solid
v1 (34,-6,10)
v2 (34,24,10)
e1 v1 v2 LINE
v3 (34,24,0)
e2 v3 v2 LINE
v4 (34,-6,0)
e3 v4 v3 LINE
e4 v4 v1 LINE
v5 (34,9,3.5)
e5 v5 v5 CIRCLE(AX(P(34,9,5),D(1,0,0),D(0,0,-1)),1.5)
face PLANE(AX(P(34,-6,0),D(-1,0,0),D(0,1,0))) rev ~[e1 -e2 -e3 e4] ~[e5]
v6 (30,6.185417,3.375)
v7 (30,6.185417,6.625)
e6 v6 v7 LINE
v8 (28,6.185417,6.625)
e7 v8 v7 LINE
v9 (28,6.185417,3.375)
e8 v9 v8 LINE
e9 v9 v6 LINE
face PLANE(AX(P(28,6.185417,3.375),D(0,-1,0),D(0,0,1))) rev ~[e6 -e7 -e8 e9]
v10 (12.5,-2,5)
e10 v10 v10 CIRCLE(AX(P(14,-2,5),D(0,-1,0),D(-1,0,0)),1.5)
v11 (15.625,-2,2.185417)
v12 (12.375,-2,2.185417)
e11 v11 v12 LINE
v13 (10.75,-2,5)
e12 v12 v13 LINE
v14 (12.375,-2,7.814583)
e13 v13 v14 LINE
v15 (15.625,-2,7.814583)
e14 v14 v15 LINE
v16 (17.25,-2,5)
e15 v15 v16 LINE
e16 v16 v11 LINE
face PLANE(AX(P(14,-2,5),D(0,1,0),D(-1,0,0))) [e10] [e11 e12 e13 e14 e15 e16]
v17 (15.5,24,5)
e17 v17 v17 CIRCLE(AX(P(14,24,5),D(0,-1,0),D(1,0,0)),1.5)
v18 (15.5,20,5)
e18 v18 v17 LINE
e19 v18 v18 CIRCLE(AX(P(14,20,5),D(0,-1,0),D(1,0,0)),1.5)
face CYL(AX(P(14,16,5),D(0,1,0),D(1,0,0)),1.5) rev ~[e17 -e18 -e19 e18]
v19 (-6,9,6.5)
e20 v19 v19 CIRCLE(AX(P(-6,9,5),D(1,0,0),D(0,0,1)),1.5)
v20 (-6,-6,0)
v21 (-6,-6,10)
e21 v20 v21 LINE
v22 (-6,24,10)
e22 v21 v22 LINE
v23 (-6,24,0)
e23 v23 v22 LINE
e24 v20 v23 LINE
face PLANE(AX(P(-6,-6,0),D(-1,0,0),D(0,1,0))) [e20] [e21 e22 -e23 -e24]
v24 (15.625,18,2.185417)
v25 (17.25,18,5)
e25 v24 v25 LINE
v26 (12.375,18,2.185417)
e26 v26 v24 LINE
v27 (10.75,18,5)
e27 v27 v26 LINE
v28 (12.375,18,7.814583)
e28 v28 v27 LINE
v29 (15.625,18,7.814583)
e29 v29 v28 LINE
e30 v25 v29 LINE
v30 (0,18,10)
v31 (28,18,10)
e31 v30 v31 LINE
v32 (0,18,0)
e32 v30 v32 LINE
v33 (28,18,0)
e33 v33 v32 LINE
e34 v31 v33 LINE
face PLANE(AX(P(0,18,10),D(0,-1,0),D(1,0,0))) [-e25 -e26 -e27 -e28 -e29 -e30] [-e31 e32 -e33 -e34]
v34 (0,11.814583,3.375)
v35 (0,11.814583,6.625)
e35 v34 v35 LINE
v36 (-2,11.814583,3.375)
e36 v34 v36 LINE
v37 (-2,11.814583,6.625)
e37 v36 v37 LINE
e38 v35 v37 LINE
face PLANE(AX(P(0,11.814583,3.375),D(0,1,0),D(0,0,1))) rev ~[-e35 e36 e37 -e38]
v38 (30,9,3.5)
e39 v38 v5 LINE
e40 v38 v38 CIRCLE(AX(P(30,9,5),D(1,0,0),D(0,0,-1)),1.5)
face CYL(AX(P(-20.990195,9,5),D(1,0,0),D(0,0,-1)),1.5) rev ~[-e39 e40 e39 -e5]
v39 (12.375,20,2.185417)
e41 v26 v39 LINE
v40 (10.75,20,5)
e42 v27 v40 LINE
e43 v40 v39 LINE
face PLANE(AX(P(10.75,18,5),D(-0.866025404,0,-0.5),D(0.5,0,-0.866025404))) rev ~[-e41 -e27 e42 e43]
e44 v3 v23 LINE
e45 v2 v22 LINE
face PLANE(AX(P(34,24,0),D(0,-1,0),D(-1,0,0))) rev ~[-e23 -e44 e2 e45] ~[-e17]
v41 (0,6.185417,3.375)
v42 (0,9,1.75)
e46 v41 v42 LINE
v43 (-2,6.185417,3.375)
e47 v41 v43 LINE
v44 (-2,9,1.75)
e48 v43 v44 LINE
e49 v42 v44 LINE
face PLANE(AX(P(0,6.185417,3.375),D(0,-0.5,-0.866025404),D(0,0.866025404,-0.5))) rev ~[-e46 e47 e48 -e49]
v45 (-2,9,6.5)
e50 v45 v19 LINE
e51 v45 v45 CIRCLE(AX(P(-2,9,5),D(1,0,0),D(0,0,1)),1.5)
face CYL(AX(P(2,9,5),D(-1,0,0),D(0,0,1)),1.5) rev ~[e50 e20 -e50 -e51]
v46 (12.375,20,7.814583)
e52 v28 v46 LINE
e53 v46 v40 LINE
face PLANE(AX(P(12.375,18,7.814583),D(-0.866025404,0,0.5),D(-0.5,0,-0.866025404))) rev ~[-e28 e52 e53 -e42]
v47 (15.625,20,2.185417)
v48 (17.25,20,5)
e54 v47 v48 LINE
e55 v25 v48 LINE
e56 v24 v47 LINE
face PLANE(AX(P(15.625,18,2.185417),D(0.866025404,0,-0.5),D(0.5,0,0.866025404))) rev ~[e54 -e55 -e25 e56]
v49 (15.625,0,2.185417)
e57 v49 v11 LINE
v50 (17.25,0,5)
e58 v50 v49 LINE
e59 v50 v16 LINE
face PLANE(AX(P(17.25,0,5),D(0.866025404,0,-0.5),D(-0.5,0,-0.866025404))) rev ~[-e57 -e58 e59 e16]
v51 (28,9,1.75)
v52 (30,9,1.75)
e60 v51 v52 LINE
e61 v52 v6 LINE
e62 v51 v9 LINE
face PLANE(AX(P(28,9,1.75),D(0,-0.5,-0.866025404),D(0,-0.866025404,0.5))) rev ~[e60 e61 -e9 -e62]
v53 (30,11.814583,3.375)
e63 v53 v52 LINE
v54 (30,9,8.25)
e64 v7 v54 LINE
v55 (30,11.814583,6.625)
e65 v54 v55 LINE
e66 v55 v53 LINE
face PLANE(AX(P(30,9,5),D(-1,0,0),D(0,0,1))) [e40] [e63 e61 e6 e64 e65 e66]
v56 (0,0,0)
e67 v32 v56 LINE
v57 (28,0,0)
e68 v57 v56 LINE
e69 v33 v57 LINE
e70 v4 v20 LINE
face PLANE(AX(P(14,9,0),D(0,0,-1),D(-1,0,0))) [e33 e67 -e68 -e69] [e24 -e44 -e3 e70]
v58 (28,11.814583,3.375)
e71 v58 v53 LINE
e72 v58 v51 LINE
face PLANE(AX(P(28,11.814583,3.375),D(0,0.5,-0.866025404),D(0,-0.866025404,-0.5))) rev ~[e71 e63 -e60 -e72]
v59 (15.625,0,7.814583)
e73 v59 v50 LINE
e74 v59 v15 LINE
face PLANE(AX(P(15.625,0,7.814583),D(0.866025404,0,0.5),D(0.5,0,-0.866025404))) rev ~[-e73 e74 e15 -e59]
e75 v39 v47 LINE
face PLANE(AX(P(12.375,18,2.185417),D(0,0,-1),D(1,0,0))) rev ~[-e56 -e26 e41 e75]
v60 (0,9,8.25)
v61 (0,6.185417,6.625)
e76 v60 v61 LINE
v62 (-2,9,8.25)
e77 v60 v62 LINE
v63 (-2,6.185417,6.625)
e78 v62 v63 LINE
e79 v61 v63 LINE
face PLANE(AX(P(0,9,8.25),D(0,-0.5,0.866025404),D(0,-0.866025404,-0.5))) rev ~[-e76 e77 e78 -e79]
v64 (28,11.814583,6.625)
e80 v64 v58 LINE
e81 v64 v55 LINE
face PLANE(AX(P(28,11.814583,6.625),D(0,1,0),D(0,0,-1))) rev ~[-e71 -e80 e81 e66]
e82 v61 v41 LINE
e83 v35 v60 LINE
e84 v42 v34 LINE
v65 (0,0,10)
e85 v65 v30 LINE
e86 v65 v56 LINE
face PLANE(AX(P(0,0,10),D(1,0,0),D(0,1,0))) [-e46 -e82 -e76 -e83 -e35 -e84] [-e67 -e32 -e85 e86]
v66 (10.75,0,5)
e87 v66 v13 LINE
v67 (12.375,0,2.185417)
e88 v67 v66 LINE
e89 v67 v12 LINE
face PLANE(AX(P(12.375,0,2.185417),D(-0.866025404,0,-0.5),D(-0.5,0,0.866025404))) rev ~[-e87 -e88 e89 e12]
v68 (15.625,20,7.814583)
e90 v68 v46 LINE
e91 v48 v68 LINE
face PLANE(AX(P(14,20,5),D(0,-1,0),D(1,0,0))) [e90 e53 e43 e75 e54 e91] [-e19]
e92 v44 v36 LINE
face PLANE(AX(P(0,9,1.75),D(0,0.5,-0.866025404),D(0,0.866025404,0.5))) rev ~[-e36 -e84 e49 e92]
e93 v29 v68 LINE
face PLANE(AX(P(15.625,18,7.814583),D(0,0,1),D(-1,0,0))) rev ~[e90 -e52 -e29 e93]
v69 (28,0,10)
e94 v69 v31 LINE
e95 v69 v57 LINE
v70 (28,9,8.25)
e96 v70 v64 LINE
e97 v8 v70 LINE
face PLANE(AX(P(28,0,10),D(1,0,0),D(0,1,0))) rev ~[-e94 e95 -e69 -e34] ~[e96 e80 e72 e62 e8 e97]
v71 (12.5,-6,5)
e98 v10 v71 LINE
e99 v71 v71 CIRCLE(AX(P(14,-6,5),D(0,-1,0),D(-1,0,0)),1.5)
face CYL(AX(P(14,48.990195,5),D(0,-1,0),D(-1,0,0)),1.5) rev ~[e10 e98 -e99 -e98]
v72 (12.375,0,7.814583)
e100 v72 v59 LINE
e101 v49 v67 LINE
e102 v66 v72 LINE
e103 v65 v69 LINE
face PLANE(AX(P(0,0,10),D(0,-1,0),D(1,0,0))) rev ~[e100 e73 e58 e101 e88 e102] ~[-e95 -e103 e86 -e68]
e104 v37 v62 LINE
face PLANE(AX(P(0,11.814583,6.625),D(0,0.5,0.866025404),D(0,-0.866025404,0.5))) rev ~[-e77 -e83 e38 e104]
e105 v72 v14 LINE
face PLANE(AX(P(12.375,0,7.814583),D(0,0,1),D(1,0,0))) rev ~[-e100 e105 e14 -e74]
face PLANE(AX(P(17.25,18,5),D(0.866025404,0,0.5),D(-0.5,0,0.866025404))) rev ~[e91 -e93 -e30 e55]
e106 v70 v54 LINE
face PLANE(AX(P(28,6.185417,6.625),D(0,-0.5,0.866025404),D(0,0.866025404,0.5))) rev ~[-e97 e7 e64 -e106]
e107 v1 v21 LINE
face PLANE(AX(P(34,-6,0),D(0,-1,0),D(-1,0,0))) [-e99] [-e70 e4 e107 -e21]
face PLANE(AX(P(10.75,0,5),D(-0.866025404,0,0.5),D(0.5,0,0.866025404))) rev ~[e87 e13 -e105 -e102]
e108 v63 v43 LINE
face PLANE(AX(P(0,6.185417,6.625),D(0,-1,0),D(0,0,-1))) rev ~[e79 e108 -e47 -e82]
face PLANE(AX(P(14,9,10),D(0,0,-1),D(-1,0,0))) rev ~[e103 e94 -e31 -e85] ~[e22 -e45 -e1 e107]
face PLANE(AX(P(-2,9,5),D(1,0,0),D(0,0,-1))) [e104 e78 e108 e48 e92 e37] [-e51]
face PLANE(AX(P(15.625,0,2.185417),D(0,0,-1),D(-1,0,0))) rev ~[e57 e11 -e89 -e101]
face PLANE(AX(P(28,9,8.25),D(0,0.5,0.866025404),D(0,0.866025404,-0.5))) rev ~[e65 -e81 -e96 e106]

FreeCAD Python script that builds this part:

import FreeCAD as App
import Part
import Sketcher
from FreeCAD import Vector
Q = App.Units.Quantity

doc = App.newDocument("Part")
body = doc.addObject("PartDesign::Body", "Body")

# Sketch on XY plane
sketch1 = body.newObject("Sketcher::SketchObject", "Sketch")
sketch1.AttachmentSupport = (doc.getObject("XY_Plane"), [""])
sketch1.MapMode = "FlatFace"
sketch1.addGeometry([
    Part.LineSegment(Vector(34, 24, 0), Vector(34, -6, 0)),
    Part.LineSegment(Vector(34, -6, 0), Vector(-6, -6, 0)),
    Part.LineSegment(Vector(-6, -6, 0), Vector(-6, 24, 0)),
    Part.LineSegment(Vector(-6, 24, 0), Vector(34, 24, 0)),
], False)
sketch1.addConstraint([
    Sketcher.Constraint("Coincident", 0, 2, 1, 1),
    Sketcher.Constraint("Coincident", 1, 2, 2, 1),
    Sketcher.Constraint("Coincident", 2, 2, 3, 1),
    Sketcher.Constraint("Coincident", 3, 2, 0, 1),
    Sketcher.Constraint("Vertical", 0),
    Sketcher.Constraint("Horizontal", 1),
    Sketcher.Constraint("Vertical", 2),
    Sketcher.Constraint("Horizontal", 3),
    Sketcher.Constraint("DistanceX", 1, 2, 1, 1, 40.0),
    Sketcher.Constraint("DistanceY", 0, 2, 0, 1, 30.0),
    Sketcher.Constraint("DistanceX", -1, 1, 0, 2, 34.0),
    Sketcher.Constraint("DistanceY", 0, 2, -1, 1, 6.0),
])
pad1 = body.newObject("PartDesign::Pad", "Pad")
pad1.Profile = sketch1
pad1.Length = 10

# Sketch on XY plane
sketch2 = body.newObject("Sketcher::SketchObject", "Sketch001")
sketch2.AttachmentSupport = (doc.getObject("XY_Plane"), [""])
sketch2.MapMode = "FlatFace"
sketch2.AttachmentOffset = App.Placement(Vector(0, 0, 10), App.Rotation())
sketch2.addGeometry([
    Part.LineSegment(Vector(0, 18, 0), Vector(0, 0, 0)),
    Part.LineSegment(Vector(0, 0, 0), Vector(28, 0, 0)),
    Part.LineSegment(Vector(28, 0, 0), Vector(28, 18, 0)),
    Part.LineSegment(Vector(28, 18, 0), Vector(0, 18, 0)),
], False)
sketch2.addConstraint([
    Sketcher.Constraint("Coincident", 0, 2, 1, 1),
    Sketcher.Constraint("Coincident", 1, 2, 2, 1),
    Sketcher.Constraint("Coincident", 2, 2, 3, 1),
    Sketcher.Constraint("Coincident", 3, 2, 0, 1),
    Sketcher.Constraint("Vertical", 0),
    Sketcher.Constraint("Horizontal", 1),
    Sketcher.Constraint("Vertical", 2),
    Sketcher.Constraint("Horizontal", 3),
    Sketcher.Constraint("Coincident", 0, 2, -1, 1),
    Sketcher.Constraint("DistanceX", 1, 1, 1, 2, 28.0),
    Sketcher.Constraint("DistanceY", 0, 2, 0, 1, 18.0),
])
pocket1 = body.newObject("PartDesign::Pocket", "Pocket")
pocket1.Profile = sketch2
pocket1.Type = "ThroughAll"

# Sketch on YZ plane
sketch3 = body.newObject("Sketcher::SketchObject", "Sketch002")
sketch3.AttachmentSupport = (doc.getObject("YZ_Plane"), [""])
sketch3.MapMode = "FlatFace"
sketch3.addGeometry([
    Part.LineSegment(Vector(9, 8.2, 0), Vector(6.2, 6.6, 0)),  # 0
    Part.LineSegment(Vector(6.2, 6.6, 0), Vector(6.2, 3.4, 0)),  # 1
    Part.LineSegment(Vector(6.2, 3.4, 0), Vector(9, 1.8, 0)),  # 2
    Part.LineSegment(Vector(9, 1.8, 0), Vector(11.8, 3.4, 0)),  # 3
    Part.LineSegment(Vector(11.8, 3.4, 0), Vector(11.8, 6.6, 0)),  # 4
    Part.LineSegment(Vector(11.8, 6.6, 0), Vector(9, 8.2, 0)),  # 5
], False)
sketch3.addConstraint([
    Sketcher.Constraint("Coincident", 0, 2, 1, 1),
    Sketcher.Constraint("Coincident", 1, 2, 2, 1),
    Sketcher.Constraint("Coincident", 2, 2, 3, 1),
    Sketcher.Constraint("Coincident", 3, 2, 4, 1),
    Sketcher.Constraint("Coincident", 4, 2, 5, 1),
    Sketcher.Constraint("Coincident", 5, 2, 0, 1),
    Sketcher.Constraint("Vertical", 1),
    Sketcher.Constraint("Vertical", 4),
    Sketcher.Constraint("Parallel", 0, 3),
    Sketcher.Constraint("Parallel", 2, 5),
    Sketcher.Constraint("Horizontal", 1, 2, 3, 2),
    Sketcher.Constraint("Horizontal", 0, 2, 4, 2),
    Sketcher.Constraint("Vertical", 2, 2, 5, 2),
    Sketcher.Constraint("Angle", 0, Q("-150 deg")),
    Sketcher.Constraint("DistanceX", -1, 1, 2, 2, 9.0),
    Sketcher.Constraint("DistanceY", 1, 2, 1, 1, 3.25),
    Sketcher.Constraint("DistanceY", 2, 2, 5, 2, 6.5),
    Sketcher.Constraint("DistanceY", -1, 1, 2, 2, 1.75),
])
pocket2 = body.newObject("PartDesign::Pocket", "Pocket001")
pocket2.Profile = sketch3
pocket2.Length = 2

# Sketch on XZ plane
sketch4 = body.newObject("Sketcher::SketchObject", "Sketch003")
sketch4.AttachmentSupport = (doc.getObject("XZ_Plane"), [""])
sketch4.MapMode = "FlatFace"
sketch4.AttachmentOffset = App.Placement(Vector(0, 0, -18), App.Rotation())
sketch4.addGeometry([
    Part.LineSegment(Vector(17.2, 5, 0), Vector(15.6, 7.8, 0)),  # 0
    Part.LineSegment(Vector(15.6, 7.8, 0), Vector(12.4, 7.8, 0)),  # 1
    Part.LineSegment(Vector(12.4, 7.8, 0), Vector(10.8, 5, 0)),  # 2
    Part.LineSegment(Vector(10.8, 5, 0), Vector(12.4, 2.2, 0)),  # 3
    Part.LineSegment(Vector(12.4, 2.2, 0), Vector(15.6, 2.2, 0)),  # 4
    Part.LineSegment(Vector(15.6, 2.2, 0), Vector(17.2, 5, 0)),  # 5
], False)
sketch4.addConstraint([
    Sketcher.Constraint("Coincident", 0, 2, 1, 1),
    Sketcher.Constraint("Coincident", 1, 2, 2, 1),
    Sketcher.Constraint("Coincident", 2, 2, 3, 1),
    Sketcher.Constraint("Coincident", 3, 2, 4, 1),
    Sketcher.Constraint("Coincident", 4, 2, 5, 1),
    Sketcher.Constraint("Coincident", 5, 2, 0, 1),
    Sketcher.Constraint("Horizontal", 1),
    Sketcher.Constraint("Horizontal", 4),
    Sketcher.Constraint("Parallel", 0, 3),
    Sketcher.Constraint("Parallel", 2, 5),
    Sketcher.Constraint("Horizontal", 2, 2, 5, 2),
    Sketcher.Constraint("Vertical", 1, 2, 3, 2),
    Sketcher.Constraint("Vertical", 0, 2, 4, 2),
    Sketcher.Constraint("Angle", 0, Q("120 deg")),
    Sketcher.Constraint("DistanceY", -1, 1, 2, 2, 5.0),
    Sketcher.Constraint("DistanceX", 1, 2, 1, 1, 3.25),
    Sketcher.Constraint("DistanceX", 2, 2, 5, 2, 6.5),
    Sketcher.Constraint("DistanceX", -1, 1, 2, 2, 10.75),
])
pocket3 = body.newObject("PartDesign::Pocket", "Pocket002")
pocket3.Profile = sketch4
pocket3.Length = 2

# Sketch on YZ plane
sketch5 = body.newObject("Sketcher::SketchObject", "Sketch004")
sketch5.AttachmentSupport = (doc.getObject("YZ_Plane"), [""])
sketch5.MapMode = "FlatFace"
sketch5.AttachmentOffset = App.Placement(Vector(0, 0, 28), App.Rotation())
sketch5.addGeometry([
    Part.LineSegment(Vector(9, 1.8, 0), Vector(6.2, 3.4, 0)),  # 0
    Part.LineSegment(Vector(6.2, 3.4, 0), Vector(6.2, 6.6, 0)),  # 1
    Part.LineSegment(Vector(6.2, 6.6, 0), Vector(9, 8.2, 0)),  # 2
    Part.LineSegment(Vector(9, 8.2, 0), Vector(11.8, 6.6, 0)),  # 3
    Part.LineSegment(Vector(11.8, 6.6, 0), Vector(11.8, 3.4, 0)),  # 4
    Part.LineSegment(Vector(11.8, 3.4, 0), Vector(9, 1.8, 0)),  # 5
], False)
sketch5.addConstraint([
    Sketcher.Constraint("Coincident", 0, 2, 1, 1),
    Sketcher.Constraint("Coincident", 1, 2, 2, 1),
    Sketcher.Constraint("Coincident", 2, 2, 3, 1),
    Sketcher.Constraint("Coincident", 3, 2, 4, 1),
    Sketcher.Constraint("Coincident", 4, 2, 5, 1),
    Sketcher.Constraint("Coincident", 5, 2, 0, 1),
    Sketcher.Constraint("Vertical", 1),
    Sketcher.Constraint("Vertical", 4),
    Sketcher.Constraint("Parallel", 0, 3),
    Sketcher.Constraint("Parallel", 2, 5),
    Sketcher.Constraint("Horizontal", 1, 2, 3, 2),
    Sketcher.Constraint("Horizontal", 0, 2, 4, 2),
    Sketcher.Constraint("Vertical", 2, 2, 5, 2),
    Sketcher.Constraint("Angle", 0, Q("150 deg")),
    Sketcher.Constraint("DistanceX", -1, 1, 2, 2, 9.0),
    Sketcher.Constraint("DistanceY", 1, 1, 1, 2, 3.25),
    Sketcher.Constraint("DistanceY", 5, 2, 2, 2, 6.5),
    Sketcher.Constraint("DistanceY", -1, 1, 2, 2, 8.25),
])
pocket4 = body.newObject("PartDesign::Pocket", "Pocket003")
pocket4.Profile = sketch5
pocket4.Length = 2
pocket4.Reversed = True

# Sketch on XZ plane
sketch6 = body.newObject("Sketcher::SketchObject", "Sketch005")
sketch6.AttachmentSupport = (doc.getObject("XZ_Plane"), [""])
sketch6.MapMode = "FlatFace"
sketch6.addGeometry([
    Part.LineSegment(Vector(17.2, 5, 0), Vector(15.6, 2.2, 0)),  # 0
    Part.LineSegment(Vector(15.6, 2.2, 0), Vector(12.4, 2.2, 0)),  # 1
    Part.LineSegment(Vector(12.4, 2.2, 0), Vector(10.8, 5, 0)),  # 2
    Part.LineSegment(Vector(10.8, 5, 0), Vector(12.4, 7.8, 0)),  # 3
    Part.LineSegment(Vector(12.4, 7.8, 0), Vector(15.6, 7.8, 0)),  # 4
    Part.LineSegment(Vector(15.6, 7.8, 0), Vector(17.2, 5, 0)),  # 5
], False)
sketch6.addConstraint([
    Sketcher.Constraint("Coincident", 0, 2, 1, 1),
    Sketcher.Constraint("Coincident", 1, 2, 2, 1),
    Sketcher.Constraint("Coincident", 2, 2, 3, 1),
    Sketcher.Constraint("Coincident", 3, 2, 4, 1),
    Sketcher.Constraint("Coincident", 4, 2, 5, 1),
    Sketcher.Constraint("Coincident", 5, 2, 0, 1),
    Sketcher.Constraint("Horizontal", 1),
    Sketcher.Constraint("Horizontal", 4),
    Sketcher.Constraint("Parallel", 0, 3),
    Sketcher.Constraint("Parallel", 2, 5),
    Sketcher.Constraint("Horizontal", 2, 2, 5, 2),
    Sketcher.Constraint("Vertical", 1, 2, 3, 2),
    Sketcher.Constraint("Vertical", 0, 2, 4, 2),
    Sketcher.Constraint("Angle", 0, Q("-120 deg")),
    Sketcher.Constraint("DistanceY", -1, 1, 2, 2, 5.0),
    Sketcher.Constraint("DistanceX", 1, 2, 1, 1, 3.25),
    Sketcher.Constraint("DistanceX", 2, 2, 5, 2, 6.5),
    Sketcher.Constraint("DistanceX", -1, 1, 2, 2, 10.75),
])
pocket5 = body.newObject("PartDesign::Pocket", "Pocket004")
pocket5.Profile = sketch6
pocket5.Length = 2
pocket5.Reversed = True

# Sketch on YZ plane
sketch7 = body.newObject("Sketcher::SketchObject", "Sketch006")
sketch7.AttachmentSupport = (doc.getObject("YZ_Plane"), [""])
sketch7.MapMode = "FlatFace"
sketch7.AttachmentOffset = App.Placement(Vector(0, 0, -2), App.Rotation())
sketch7.addGeometry(Part.Circle(Vector(9, 5, 0), Vector(0, 0, 1), 1.5), False)
sketch7.addConstraint([
    Sketcher.Constraint("Diameter", 0, 3.0),
    Sketcher.Constraint("DistanceX", -1, 1, 0, 3, 9.0),
    Sketcher.Constraint("DistanceY", -1, 1, 0, 3, 5.0),
])
doc.recompute()
hole = body.newObject("PartDesign::Hole", "Hole")
hole.Profile = sketch7
hole.ThreadType = "None"
hole.Diameter = 3
hole.DepthType = "Dimension"
hole.Depth = 4
hole.DrillPoint = "Flat"

# Sketch on XZ plane
sketch8 = body.newObject("Sketcher::SketchObject", "Sketch007")
sketch8.AttachmentSupport = (doc.getObject("XZ_Plane"), [""])
sketch8.MapMode = "FlatFace"
sketch8.AttachmentOffset = App.Placement(Vector(0, 0, -20), App.Rotation())
sketch8.addGeometry(Part.Circle(Vector(14, 5, 0), Vector(0, 0, 1), 1.5), False)
sketch8.addConstraint([
    Sketcher.Constraint("Diameter", 0, 3.0),
    Sketcher.Constraint("DistanceX", -1, 1, 0, 3, 14.0),
    Sketcher.Constraint("DistanceY", -1, 1, 0, 3, 5.0),
])
doc.recompute()
hole2 = body.newObject("PartDesign::Hole", "Hole001")
hole2.Profile = sketch8
hole2.ThreadType = "None"
hole2.Diameter = 3
hole2.DepthType = "Dimension"
hole2.Depth = 4
hole2.DrillPoint = "Flat"

# Sketch on YZ plane
sketch9 = body.newObject("Sketcher::SketchObject", "Sketch008")
sketch9.AttachmentSupport = (doc.getObject("YZ_Plane"), [""])
sketch9.MapMode = "FlatFace"
sketch9.AttachmentOffset = App.Placement(Vector(0, 0, 30), App.Rotation())
sketch9.addGeometry(Part.Circle(Vector(9, 5, 0), Vector(0, 0, 1), 1.5), False)
sketch9.addConstraint([
    Sketcher.Constraint("Diameter", 0, 3.0),
    Sketcher.Constraint("DistanceX", -1, 1, 0, 3, 9.0),
    Sketcher.Constraint("DistanceY", -1, 1, 0, 3, 5.0),
])
doc.recompute()
hole3 = body.newObject("PartDesign::Hole", "Hole002")
hole3.Profile = sketch9
hole3.ThreadType = "None"
hole3.Diameter = 3
hole3.DepthType = "ThroughAll"
hole3.Reversed = True

# Sketch on XZ plane
sketch10 = body.newObject("Sketcher::SketchObject", "Sketch009")
sketch10.AttachmentSupport = (doc.getObject("XZ_Plane"), [""])
sketch10.MapMode = "FlatFace"
sketch10.AttachmentOffset = App.Placement(Vector(0, 0, 2), App.Rotation())
sketch10.addGeometry(Part.Circle(Vector(14, 5, 0), Vector(0, 0, 1), 1.5), False)
sketch10.addConstraint([
    Sketcher.Constraint("Diameter", 0, 3.0),
    Sketcher.Constraint("DistanceX", -1, 1, 0, 3, 14.0),
    Sketcher.Constraint("DistanceY", -1, 1, 0, 3, 5.0),
])
doc.recompute()
hole4 = body.newObject("PartDesign::Hole", "Hole003")
hole4.Profile = sketch10
hole4.ThreadType = "None"
hole4.Diameter = 3
hole4.DepthType = "ThroughAll"
hole4.Reversed = True

doc.recompute()
